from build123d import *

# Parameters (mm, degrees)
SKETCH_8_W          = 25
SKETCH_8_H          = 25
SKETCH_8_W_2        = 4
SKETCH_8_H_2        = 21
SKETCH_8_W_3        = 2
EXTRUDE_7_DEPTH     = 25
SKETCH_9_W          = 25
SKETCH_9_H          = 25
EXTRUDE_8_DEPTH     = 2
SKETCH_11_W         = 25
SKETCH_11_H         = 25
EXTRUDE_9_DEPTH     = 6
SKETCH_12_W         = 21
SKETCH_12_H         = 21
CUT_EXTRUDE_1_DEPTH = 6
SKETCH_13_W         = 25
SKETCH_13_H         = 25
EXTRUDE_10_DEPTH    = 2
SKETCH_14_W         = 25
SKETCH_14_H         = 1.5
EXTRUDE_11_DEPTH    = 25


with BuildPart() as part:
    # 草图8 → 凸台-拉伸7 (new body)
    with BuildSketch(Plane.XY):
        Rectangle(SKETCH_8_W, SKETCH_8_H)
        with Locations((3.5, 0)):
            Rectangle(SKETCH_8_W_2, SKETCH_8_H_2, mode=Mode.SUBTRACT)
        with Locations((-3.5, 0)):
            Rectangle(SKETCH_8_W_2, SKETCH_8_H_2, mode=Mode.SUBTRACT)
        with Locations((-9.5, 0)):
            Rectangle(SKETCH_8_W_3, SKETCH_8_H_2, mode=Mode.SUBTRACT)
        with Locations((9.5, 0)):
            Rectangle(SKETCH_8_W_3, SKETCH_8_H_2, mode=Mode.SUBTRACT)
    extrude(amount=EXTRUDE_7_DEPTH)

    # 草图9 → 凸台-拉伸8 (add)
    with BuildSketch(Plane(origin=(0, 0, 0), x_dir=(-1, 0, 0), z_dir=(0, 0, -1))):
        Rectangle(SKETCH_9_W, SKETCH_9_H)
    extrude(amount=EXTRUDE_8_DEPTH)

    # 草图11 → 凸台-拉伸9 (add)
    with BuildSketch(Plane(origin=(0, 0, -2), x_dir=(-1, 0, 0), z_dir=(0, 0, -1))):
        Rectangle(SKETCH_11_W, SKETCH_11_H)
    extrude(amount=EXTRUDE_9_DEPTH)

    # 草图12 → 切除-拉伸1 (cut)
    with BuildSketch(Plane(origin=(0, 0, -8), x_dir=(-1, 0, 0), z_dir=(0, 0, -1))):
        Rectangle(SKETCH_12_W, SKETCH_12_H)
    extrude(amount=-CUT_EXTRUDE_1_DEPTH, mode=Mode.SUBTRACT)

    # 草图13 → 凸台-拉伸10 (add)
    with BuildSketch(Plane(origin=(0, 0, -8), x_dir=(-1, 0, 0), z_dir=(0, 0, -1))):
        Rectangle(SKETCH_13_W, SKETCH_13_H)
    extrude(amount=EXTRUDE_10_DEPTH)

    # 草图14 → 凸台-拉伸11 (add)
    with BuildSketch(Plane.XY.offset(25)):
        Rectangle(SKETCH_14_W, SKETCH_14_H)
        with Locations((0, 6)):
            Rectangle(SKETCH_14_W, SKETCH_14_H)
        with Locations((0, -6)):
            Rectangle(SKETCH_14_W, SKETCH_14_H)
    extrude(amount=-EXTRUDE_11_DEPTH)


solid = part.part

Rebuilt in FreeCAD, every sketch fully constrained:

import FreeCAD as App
import Part
import Sketcher

V = App.Vector
Q = App.Units.Quantity

doc = App.newDocument("Part")
params = doc.addObject("Spreadsheet::Sheet", "Params")
for row, (alias, value) in enumerate([
    ("sketch1_width", "25 mm"),
    ("sketch1_width2", "2 mm"),
    ("sketch1_width3", "4 mm"),
    ("sketch1_height", "21 mm"),
    ("pad1_length", "25 mm"),
    ("sketch2_width", "25 mm"),
    ("pad2_length", "2 mm"),
    ("sketch3_width", "25 mm"),
    ("pad3_length", "6 mm"),
    ("sketch4_width", "21 mm"),
    ("pocket1_length", "6 mm"),
    ("sketch5_width", "25 mm"),
    ("pad4_length", "2 mm"),
    ("sketch6_width", "25 mm"),
    ("sketch6_height", "1.5 mm"),
    ("pad5_length", "25 mm"),
], start=1):
    params.set(f"A{row}", alias)
    params.set(f"B{row}", "=" + value)
    params.setAlias(f"B{row}", alias)

body = doc.addObject("PartDesign::Body", "Body")

sketch1 = body.newObject("Sketcher::SketchObject", "Sketch")
sketch1.AttachmentSupport = (doc.getObject("XY_Plane"), [""])
sketch1.MapMode = "FlatFace"
sketch1.addGeometry([
    Part.LineSegment(V(-12.5, 12.5, 0), V(-12.5, -12.5, 0)),
    Part.LineSegment(V(-12.5, -12.5, 0), V(12.5, -12.5, 0)),
    Part.LineSegment(V(12.5, -12.5, 0), V(12.5, 12.5, 0)),
    Part.LineSegment(V(12.5, 12.5, 0), V(-12.5, 12.5, 0)),
    Part.LineSegment(V(-8.5, -10.5, 0), V(-10.5, -10.5, 0)),
    Part.LineSegment(V(-10.5, -10.5, 0), V(-10.5, 10.5, 0)),
    Part.LineSegment(V(-10.5, 10.5, 0), V(-8.5, 10.5, 0)),
    Part.LineSegment(V(-8.5, 10.5, 0), V(-8.5, -10.5, 0)),
    Part.LineSegment(V(-1.5, -10.5, 0), V(-5.5, -10.5, 0)),
    Part.LineSegment(V(-5.5, -10.5, 0), V(-5.5, 10.5, 0)),
    Part.LineSegment(V(-5.5, 10.5, 0), V(-1.5, 10.5, 0)),
    Part.LineSegment(V(-1.5, 10.5, 0), V(-1.5, -10.5, 0)),
    Part.LineSegment(V(5.5, -10.5, 0), V(1.5, -10.5, 0)),
    Part.LineSegment(V(1.5, -10.5, 0), V(1.5, 10.5, 0)),
    Part.LineSegment(V(1.5, 10.5, 0), V(5.5, 10.5, 0)),
    Part.LineSegment(V(5.5, 10.5, 0), V(5.5, -10.5, 0)),
    Part.LineSegment(V(10.5, -10.5, 0), V(8.5, -10.5, 0)),
    Part.LineSegment(V(8.5, -10.5, 0), V(8.5, 10.5, 0)),
    Part.LineSegment(V(8.5, 10.5, 0), V(10.5, 10.5, 0)),
    Part.LineSegment(V(10.5, 10.5, 0), V(10.5, -10.5, 0)),
], False)
sketch1.addConstraint([
    Sketcher.Constraint("Coincident", 0, 2, 1, 1),
    Sketcher.Constraint("Coincident", 1, 2, 2, 1),
    Sketcher.Constraint("Coincident", 2, 2, 3, 1),
    Sketcher.Constraint("Coincident", 3, 2, 0, 1),
    Sketcher.Constraint("Coincident", 4, 2, 5, 1),
    Sketcher.Constraint("Coincident", 5, 2, 6, 1),
    Sketcher.Constraint("Coincident", 6, 2, 7, 1),
    Sketcher.Constraint("Coincident", 7, 2, 4, 1),
    Sketcher.Constraint("Coincident", 8, 2, 9, 1),
    Sketcher.Constraint("Coincident", 9, 2, 10, 1),
    Sketcher.Constraint("Coincident", 10, 2, 11, 1),
    Sketcher.Constraint("Coincident", 11, 2, 8, 1),
    Sketcher.Constraint("Coincident", 12, 2, 13, 1),
    Sketcher.Constraint("Coincident", 13, 2, 14, 1),
    Sketcher.Constraint("Coincident", 14, 2, 15, 1),
    Sketcher.Constraint("Coincident", 15, 2, 12, 1),
    Sketcher.Constraint("Coincident", 16, 2, 17, 1),
    Sketcher.Constraint("Coincident", 17, 2, 18, 1),
    Sketcher.Constraint("Coincident", 18, 2, 19, 1),
    Sketcher.Constraint("Coincident", 19, 2, 16, 1),
    Sketcher.Constraint("Vertical", 0),
    Sketcher.Constraint("Horizontal", 1),
    Sketcher.Constraint("Vertical", 2),
    Sketcher.Constraint("Horizontal", 3),
    Sketcher.Constraint("Horizontal", 4),
    Sketcher.Constraint("Vertical", 5),
    Sketcher.Constraint("Horizontal", 6),
    Sketcher.Constraint("Vertical", 7),
    Sketcher.Constraint("Horizontal", 8),
    Sketcher.Constraint("Vertical", 9),
    Sketcher.Constraint("Horizontal", 10),
    Sketcher.Constraint("Vertical", 11),
    Sketcher.Constraint("Horizontal", 12),
    Sketcher.Constraint("Vertical", 13),
    Sketcher.Constraint("Horizontal", 14),
    Sketcher.Constraint("Vertical", 15),
    Sketcher.Constraint("Horizontal", 16),
    Sketcher.Constraint("Vertical", 17),
    Sketcher.Constraint("Horizontal", 18),
    Sketcher.Constraint("Vertical", 19),
    Sketcher.Constraint("Symmetric", 0, 2, 2, 2, -1, 1),
    Sketcher.Constraint("Symmetric", 10, 2, 12, 2, -1, 1),
    Sketcher.Constraint("Symmetric", 8, 2, 14, 2, -1, 1),
    Sketcher.Constraint("Symmetric", 6, 2, 16, 2, -1, 1),
    Sketcher.Constraint("Symmetric", 4, 2, 18, 2, -1, 1),
    Sketcher.Constraint("Horizontal", 7, 2, 8, 2),
    Sketcher.Constraint("Horizontal", 6, 2, 9, 2),
    Sketcher.Constraint("Horizontal", 11, 2, 12, 2),
    Sketcher.Constraint("Equal", 3, 0),
    Sketcher.Constraint("DistanceX", 1, 1, 1, 2, Q("25 mm")),
    Sketcher.Constraint("DistanceX", 4, 2, 4, 1, Q("2 mm")),
    Sketcher.Constraint("DistanceX", 8, 2, 8, 1, Q("4 mm")),
    Sketcher.Constraint("DistanceY", 5, 1, 5, 2, Q("21 mm")),
    Sketcher.Constraint("DistanceX", 0, 2, 4, 2, Q("2 mm")),
    Sketcher.Constraint("DistanceX", 7, 2, 8, 2, Q("3 mm")),
])
sketch1.setExpression("Constraints[49]", "Params.sketch1_width")
sketch1.setExpression("Constraints[50]", "Params.sketch1_width2")
sketch1.setExpression("Constraints[51]", "Params.sketch1_width3")
sketch1.setExpression("Constraints[52]", "Params.sketch1_height")
pad1 = body.newObject("PartDesign::Pad", "Pad")
pad1.Profile = sketch1
pad1.setExpression("Length", "Params.pad1_length")

sketch2 = body.newObject("Sketcher::SketchObject", "Sketch001")
sketch2.AttachmentSupport = (doc.getObject("XY_Plane"), [""])
sketch2.MapMode = "FlatFace"
sketch2.addGeometry([
    Part.LineSegment(V(12, 12, 0), V(12, -12, 0)),
    Part.LineSegment(V(12, -12, 0), V(-12, -12, 0)),
    Part.LineSegment(V(-12, -12, 0), V(-12, 12, 0)),
    Part.LineSegment(V(-12, 12, 0), V(12, 12, 0)),
], False)
sketch2.addConstraint([
    Sketcher.Constraint("Coincident", 0, 2, 1, 1),
    Sketcher.Constraint("Coincident", 1, 2, 2, 1),
    Sketcher.Constraint("Coincident", 2, 2, 3, 1),
    Sketcher.Constraint("Coincident", 3, 2, 0, 1),
    Sketcher.Constraint("Vertical", 0),
    Sketcher.Constraint("Horizontal", 1),
    Sketcher.Constraint("Vertical", 2),
    Sketcher.Constraint("Horizontal", 3),
    Sketcher.Constraint("Symmetric", 0, 2, 2, 2, -1, 1),
    Sketcher.Constraint("Equal", 3, 0),
    Sketcher.Constraint("DistanceX", 1, 2, 1, 1, Q("25 mm")),
])
sketch2.setExpression("Constraints[10]", "Params.sketch2_width")
pad2 = body.newObject("PartDesign::Pad", "Pad001")
pad2.Profile = sketch2
pad2.setExpression("Length", "Params.pad2_length")
pad2.Reversed = True

sketch3 = body.newObject("Sketcher::SketchObject", "Sketch002")
sketch3.AttachmentSupport = (doc.getObject("XY_Plane"), [""])
sketch3.MapMode = "FlatFace"
sketch3.AttachmentOffset = App.Placement(V(0, 0, -2), App.Rotation())
sketch3.addGeometry([
    Part.LineSegment(V(12, 12, 0), V(12, -12, 0)),
    Part.LineSegment(V(12, -12, 0), V(-12, -12, 0)),
    Part.LineSegment(V(-12, -12, 0), V(-12, 12, 0)),
    Part.LineSegment(V(-12, 12, 0), V(12, 12, 0)),
], False)
sketch3.addConstraint([
    Sketcher.Constraint("Coincident", 0, 2, 1, 1),
    Sketcher.Constraint("Coincident", 1, 2, 2, 1),
    Sketcher.Constraint("Coincident", 2, 2, 3, 1),
    Sketcher.Constraint("Coincident", 3, 2, 0, 1),
    Sketcher.Constraint("Vertical", 0),
    Sketcher.Constraint("Horizontal", 1),
    Sketcher.Constraint("Vertical", 2),
    Sketcher.Constraint("Horizontal", 3),
    Sketcher.Constraint("Symmetric", 0, 2, 2, 2, -1, 1),
    Sketcher.Constraint("Equal", 3, 0),
    Sketcher.Constraint("DistanceX", 1, 2, 1, 1, Q("25 mm")),
])
sketch3.setExpression("Constraints[10]", "Params.sketch3_width")
pad3 = body.newObject("PartDesign::Pad", "Pad002")
pad3.Profile = sketch3
pad3.setExpression("Length", "Params.pad3_length")
pad3.Reversed = True

sketch4 = body.newObject("Sketcher::SketchObject", "Sketch003")
sketch4.AttachmentSupport = (doc.getObject("XY_Plane"), [""])
sketch4.MapMode = "FlatFace"
sketch4.AttachmentOffset = App.Placement(V(0, 0, -8), App.Rotation())
sketch4.addGeometry([
    Part.LineSegment(V(10, 10, 0), V(10, -10, 0)),
    Part.LineSegment(V(10, -10, 0), V(-10, -10, 0)),
    Part.LineSegment(V(-10, -10, 0), V(-10, 10, 0)),
    Part.LineSegment(V(-10, 10, 0), V(10, 10, 0)),
], False)
sketch4.addConstraint([
    Sketcher.Constraint("Coincident", 0, 2, 1, 1),
    Sketcher.Constraint("Coincident", 1, 2, 2, 1),
    Sketcher.Constraint("Coincident", 2, 2, 3, 1),
    Sketcher.Constraint("Coincident", 3, 2, 0, 1),
    Sketcher.Constraint("Vertical", 0),
    Sketcher.Constraint("Horizontal", 1),
    Sketcher.Constraint("Vertical", 2),
    Sketcher.Constraint("Horizontal", 3),
    Sketcher.Constraint("Symmetric", 0, 2, 2, 2, -1, 1),
    Sketcher.Constraint("Equal", 3, 0),
    Sketcher.Constraint("DistanceX", 1, 2, 1, 1, Q("21 mm")),
])
sketch4.setExpression("Constraints[10]", "Params.sketch4_width")
pocket1 = body.newObject("PartDesign::Pocket", "Pocket")
pocket1.Profile = sketch4
pocket1.setExpression("Length", "Params.pocket1_length")
pocket1.Reversed = True

sketch5 = body.newObject("Sketcher::SketchObject", "Sketch004")
sketch5.AttachmentSupport = (doc.getObject("XY_Plane"), [""])
sketch5.MapMode = "FlatFace"
sketch5.AttachmentOffset = App.Placement(V(0, 0, -8), App.Rotation())
sketch5.addGeometry([
    Part.LineSegment(V(12, 12, 0), V(12, -12, 0)),
    Part.LineSegment(V(12, -12, 0), V(-12, -12, 0)),
    Part.LineSegment(V(-12, -12, 0), V(-12, 12, 0)),
    Part.LineSegment(V(-12, 12, 0), V(12, 12, 0)),
], False)
sketch5.addConstraint([
    Sketcher.Constraint("Coincident", 0, 2, 1, 1),
    Sketcher.Constraint("Coincident", 1, 2, 2, 1),
    Sketcher.Constraint("Coincident", 2, 2, 3, 1),
    Sketcher.Constraint("Coincident", 3, 2, 0, 1),
    Sketcher.Constraint("Vertical", 0),
    Sketcher.Constraint("Horizontal", 1),
    Sketcher.Constraint("Vertical", 2),
    Sketcher.Constraint("Horizontal", 3),
    Sketcher.Constraint("Symmetric", 0, 2, 2, 2, -1, 1),
    Sketcher.Constraint("Equal", 3, 0),
    Sketcher.Constraint("DistanceX", 1, 2, 1, 1, Q("25 mm")),
])
sketch5.setExpression("Constraints[10]", "Params.sketch5_width")
pad4 = body.newObject("PartDesign::Pad", "Pad003")
pad4.Profile = sketch5
pad4.setExpression("Length", "Params.pad4_length")
pad4.Reversed = True

sketch6 = body.newObject("Sketcher::SketchObject", "Sketch005")
sketch6.AttachmentSupport = (doc.getObject("XY_Plane"), [""])
sketch6.MapMode = "FlatFace"
sketch6.AttachmentOffset = App.Placement(V(0, 0, 25), App.Rotation())
sketch6.addGeometry([
    Part.LineSegment(V(-12.5, 0.8, 0), V(-12.5, -0.8, 0)),
    Part.LineSegment(V(-12.5, -0.8, 0), V(12.5, -0.8, 0)),
    Part.LineSegment(V(12.5, -0.8, 0), V(12.5, 0.8, 0)),
    Part.LineSegment(V(12.5, 0.8, 0), V(-12.5, 0.8, 0)),
    Part.LineSegment(V(-12.5, 6.8, 0), V(-12.5, 5.2, 0)),
    Part.LineSegment(V(-12.5, 5.2, 0), V(12.5, 5.2, 0)),
    Part.LineSegment(V(12.5, 5.2, 0), V(12.5, 6.8, 0)),
    Part.LineSegment(V(12.5, 6.8, 0), V(-12.5, 6.8, 0)),
    Part.LineSegment(V(-12.5, -5.2, 0), V(-12.5, -6.8, 0)),
    Part.LineSegment(V(-12.5, -6.8, 0), V(12.5, -6.8, 0)),
    Part.LineSegment(V(12.5, -6.8, 0), V(12.5, -5.2, 0)),
    Part.LineSegment(V(12.5, -5.2, 0), V(-12.5, -5.2, 0)),
], False)
sketch6.addConstraint([
    Sketcher.Constraint("Coincident", 0, 2, 1, 1),
    Sketcher.Constraint("Coincident", 1, 2, 2, 1),
    Sketcher.Constraint("Coincident", 2, 2, 3, 1),
    Sketcher.Constraint("Coincident", 3, 2, 0, 1),
    Sketcher.Constraint("Coincident", 4, 2, 5, 1),
    Sketcher.Constraint("Coincident", 5, 2, 6, 1),
    Sketcher.Constraint("Coincident", 6, 2, 7, 1),
    Sketcher.Constraint("Coincident", 7, 2, 4, 1),
    Sketcher.Constraint("Coincident", 8, 2, 9, 1),
    Sketcher.Constraint("Coincident", 9, 2, 10, 1),
    Sketcher.Constraint("Coincident", 10, 2, 11, 1),
    Sketcher.Constraint("Coincident", 11, 2, 8, 1),
    Sketcher.Constraint("Vertical", 0),
    Sketcher.Constraint("Horizontal", 1),
    Sketcher.Constraint("Vertical", 2),
    Sketcher.Constraint("Horizontal", 3),
    Sketcher.Constraint("Vertical", 4),
    Sketcher.Constraint("Horizontal", 5),
    Sketcher.Constraint("Vertical", 6),
    Sketcher.Constraint("Horizontal", 7),
    Sketcher.Constraint("Vertical", 8),
    Sketcher.Constraint("Horizontal", 9),
    Sketcher.Constraint("Vertical", 10),
    Sketcher.Constraint("Horizontal", 11),
    Sketcher.Constraint("Symmetric", 0, 2, 2, 2, -1, 1),
    Sketcher.Constraint("Symmetric", 6, 2, 8, 2, -1, 1),
    Sketcher.Constraint("Symmetric", 4, 2, 10, 2, -1, 1),
    Sketcher.Constraint("Vertical", 3, 2, 4, 2),
    Sketcher.Constraint("Vertical", 2, 2, 5, 2),
    Sketcher.Constraint("Equal", 2, 4),
    Sketcher.Constraint("DistanceX", 1, 1, 1, 2, Q("25 mm")),
    Sketcher.Constraint("DistanceY", 0, 2, 0, 1, Q("1.5 mm")),
    Sketcher.Constraint("DistanceY", 0, 2, 4, 2, Q("6 mm")),
])
sketch6.setExpression("Constraints[30]", "Params.sketch6_width")
sketch6.setExpression("Constraints[31]", "Params.sketch6_height")
pad5 = body.newObject("PartDesign::Pad", "Pad004")
pad5.Profile = sketch6
pad5.setExpression("Length", "Params.pad5_length")
pad5.Reversed = True

doc.recompute()
